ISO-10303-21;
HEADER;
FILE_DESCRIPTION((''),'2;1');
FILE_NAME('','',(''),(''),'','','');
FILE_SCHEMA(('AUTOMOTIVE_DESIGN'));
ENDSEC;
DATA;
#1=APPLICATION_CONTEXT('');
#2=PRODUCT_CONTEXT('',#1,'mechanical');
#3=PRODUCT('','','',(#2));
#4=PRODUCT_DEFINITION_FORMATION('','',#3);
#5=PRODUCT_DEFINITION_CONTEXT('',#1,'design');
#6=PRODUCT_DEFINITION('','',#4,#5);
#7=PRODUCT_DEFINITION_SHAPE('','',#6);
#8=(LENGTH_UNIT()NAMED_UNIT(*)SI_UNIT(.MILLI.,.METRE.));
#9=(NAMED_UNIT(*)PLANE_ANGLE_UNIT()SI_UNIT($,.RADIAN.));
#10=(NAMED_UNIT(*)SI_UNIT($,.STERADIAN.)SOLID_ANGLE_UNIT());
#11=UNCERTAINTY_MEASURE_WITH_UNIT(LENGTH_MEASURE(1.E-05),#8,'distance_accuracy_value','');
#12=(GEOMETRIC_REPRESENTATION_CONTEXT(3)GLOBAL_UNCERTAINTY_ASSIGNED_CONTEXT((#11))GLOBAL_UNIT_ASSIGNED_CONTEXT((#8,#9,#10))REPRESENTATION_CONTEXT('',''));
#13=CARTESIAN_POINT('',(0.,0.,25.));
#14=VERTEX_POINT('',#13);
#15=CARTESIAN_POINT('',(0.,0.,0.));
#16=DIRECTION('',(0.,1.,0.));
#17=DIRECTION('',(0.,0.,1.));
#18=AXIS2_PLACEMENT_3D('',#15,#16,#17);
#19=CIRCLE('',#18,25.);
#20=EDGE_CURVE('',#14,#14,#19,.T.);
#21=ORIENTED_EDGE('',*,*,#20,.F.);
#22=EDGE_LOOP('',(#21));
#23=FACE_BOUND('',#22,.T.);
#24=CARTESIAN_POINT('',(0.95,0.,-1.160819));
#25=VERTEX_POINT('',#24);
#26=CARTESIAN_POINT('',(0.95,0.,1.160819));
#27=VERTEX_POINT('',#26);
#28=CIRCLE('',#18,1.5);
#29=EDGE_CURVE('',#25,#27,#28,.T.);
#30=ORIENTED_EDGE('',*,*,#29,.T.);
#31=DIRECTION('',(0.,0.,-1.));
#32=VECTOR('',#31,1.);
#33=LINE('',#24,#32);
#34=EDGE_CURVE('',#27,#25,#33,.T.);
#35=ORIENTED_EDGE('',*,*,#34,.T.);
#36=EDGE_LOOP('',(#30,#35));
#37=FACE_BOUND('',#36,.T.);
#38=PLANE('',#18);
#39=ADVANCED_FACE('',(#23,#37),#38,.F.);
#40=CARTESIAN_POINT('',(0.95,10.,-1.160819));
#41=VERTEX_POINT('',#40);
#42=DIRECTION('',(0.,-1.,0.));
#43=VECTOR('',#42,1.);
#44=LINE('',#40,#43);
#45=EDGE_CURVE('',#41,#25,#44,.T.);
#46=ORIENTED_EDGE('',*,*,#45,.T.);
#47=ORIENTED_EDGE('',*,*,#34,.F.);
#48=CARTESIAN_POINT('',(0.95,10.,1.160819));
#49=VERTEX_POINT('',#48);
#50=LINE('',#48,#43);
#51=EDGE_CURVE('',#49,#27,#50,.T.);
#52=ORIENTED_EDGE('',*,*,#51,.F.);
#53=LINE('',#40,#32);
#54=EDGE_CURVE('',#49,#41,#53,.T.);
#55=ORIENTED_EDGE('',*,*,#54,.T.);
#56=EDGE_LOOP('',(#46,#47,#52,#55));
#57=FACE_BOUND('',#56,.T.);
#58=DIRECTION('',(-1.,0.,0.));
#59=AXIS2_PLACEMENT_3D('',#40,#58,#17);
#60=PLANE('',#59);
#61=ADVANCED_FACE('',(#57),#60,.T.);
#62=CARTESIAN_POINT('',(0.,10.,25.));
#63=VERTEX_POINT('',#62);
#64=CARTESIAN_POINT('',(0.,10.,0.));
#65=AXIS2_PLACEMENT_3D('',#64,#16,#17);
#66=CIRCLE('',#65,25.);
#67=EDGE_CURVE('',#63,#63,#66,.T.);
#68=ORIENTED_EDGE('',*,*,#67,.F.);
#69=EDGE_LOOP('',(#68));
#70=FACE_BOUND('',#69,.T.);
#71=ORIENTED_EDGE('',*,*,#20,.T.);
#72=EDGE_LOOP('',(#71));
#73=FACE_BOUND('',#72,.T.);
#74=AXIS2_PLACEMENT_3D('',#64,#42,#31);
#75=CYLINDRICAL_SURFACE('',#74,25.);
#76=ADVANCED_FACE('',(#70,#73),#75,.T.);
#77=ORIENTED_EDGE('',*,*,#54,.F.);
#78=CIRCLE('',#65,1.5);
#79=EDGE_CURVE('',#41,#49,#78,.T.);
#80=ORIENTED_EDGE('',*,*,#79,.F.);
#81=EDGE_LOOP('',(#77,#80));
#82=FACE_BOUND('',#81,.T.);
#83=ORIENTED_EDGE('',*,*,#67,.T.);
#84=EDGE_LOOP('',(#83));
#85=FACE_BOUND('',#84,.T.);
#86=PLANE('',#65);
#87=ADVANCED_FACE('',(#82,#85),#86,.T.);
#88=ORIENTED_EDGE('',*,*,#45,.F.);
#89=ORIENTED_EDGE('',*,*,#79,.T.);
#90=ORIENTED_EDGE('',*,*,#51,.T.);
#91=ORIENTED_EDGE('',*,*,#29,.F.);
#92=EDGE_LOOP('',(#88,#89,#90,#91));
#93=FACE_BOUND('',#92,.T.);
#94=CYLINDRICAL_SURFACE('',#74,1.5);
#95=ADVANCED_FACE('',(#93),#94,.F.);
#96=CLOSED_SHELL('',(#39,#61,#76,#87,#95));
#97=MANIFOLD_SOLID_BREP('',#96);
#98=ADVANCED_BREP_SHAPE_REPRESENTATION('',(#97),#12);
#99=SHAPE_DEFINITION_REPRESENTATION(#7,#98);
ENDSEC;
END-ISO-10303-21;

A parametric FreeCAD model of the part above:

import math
import FreeCAD as App
import Part
import Sketcher
Q = App.Units.Quantity

doc = App.newDocument("Part")
body = doc.addObject("PartDesign::Body", "Body")

# Sketch on XZ plane
sketch1 = doc.addObject("Sketcher::SketchObject", "Sketch")
body.addObject(sketch1)
sketch1.AttachmentSupport = (doc.XZ_Plane, [""])
sketch1.MapMode = "FlatFace"
sketch1.addGeometry([
    Part.Circle(App.Vector(0, 0, 0), App.Vector(0, 0, 1), 25),
    Part.ArcOfCircle(Part.Circle(App.Vector(0, 0, 0), App.Vector(0, 0, 1), 1.5), math.radians(51), math.radians(309)),
    Part.LineSegment(App.Vector(0.9, -1.2, 0), App.Vector(0.9, 1.2, 0)),
], False)
sketch1.addConstraint([
    Sketcher.Constraint("Coincident", 1, 1, 2, 2),
    Sketcher.Constraint("Coincident", 2, 1, 1, 2),
    Sketcher.Constraint("Vertical", 2),
    Sketcher.Constraint("Coincident", 0, 3, -1, 1),
    Sketcher.Constraint("Coincident", 1, 3, -1, 1),
    Sketcher.Constraint("Diameter", 0, Q("50 mm")),
    Sketcher.Constraint("Radius", 1, Q("1.5 mm")),
    Sketcher.Constraint("DistanceX", -1, 1, 1, 1, Q("0.95 mm")),
])
pad1 = doc.addObject("PartDesign::Pad", "Pad")
body.addObject(pad1)
pad1.Profile = sketch1
pad1.Length = 10
pad1.Reversed = True

doc.recompute()
